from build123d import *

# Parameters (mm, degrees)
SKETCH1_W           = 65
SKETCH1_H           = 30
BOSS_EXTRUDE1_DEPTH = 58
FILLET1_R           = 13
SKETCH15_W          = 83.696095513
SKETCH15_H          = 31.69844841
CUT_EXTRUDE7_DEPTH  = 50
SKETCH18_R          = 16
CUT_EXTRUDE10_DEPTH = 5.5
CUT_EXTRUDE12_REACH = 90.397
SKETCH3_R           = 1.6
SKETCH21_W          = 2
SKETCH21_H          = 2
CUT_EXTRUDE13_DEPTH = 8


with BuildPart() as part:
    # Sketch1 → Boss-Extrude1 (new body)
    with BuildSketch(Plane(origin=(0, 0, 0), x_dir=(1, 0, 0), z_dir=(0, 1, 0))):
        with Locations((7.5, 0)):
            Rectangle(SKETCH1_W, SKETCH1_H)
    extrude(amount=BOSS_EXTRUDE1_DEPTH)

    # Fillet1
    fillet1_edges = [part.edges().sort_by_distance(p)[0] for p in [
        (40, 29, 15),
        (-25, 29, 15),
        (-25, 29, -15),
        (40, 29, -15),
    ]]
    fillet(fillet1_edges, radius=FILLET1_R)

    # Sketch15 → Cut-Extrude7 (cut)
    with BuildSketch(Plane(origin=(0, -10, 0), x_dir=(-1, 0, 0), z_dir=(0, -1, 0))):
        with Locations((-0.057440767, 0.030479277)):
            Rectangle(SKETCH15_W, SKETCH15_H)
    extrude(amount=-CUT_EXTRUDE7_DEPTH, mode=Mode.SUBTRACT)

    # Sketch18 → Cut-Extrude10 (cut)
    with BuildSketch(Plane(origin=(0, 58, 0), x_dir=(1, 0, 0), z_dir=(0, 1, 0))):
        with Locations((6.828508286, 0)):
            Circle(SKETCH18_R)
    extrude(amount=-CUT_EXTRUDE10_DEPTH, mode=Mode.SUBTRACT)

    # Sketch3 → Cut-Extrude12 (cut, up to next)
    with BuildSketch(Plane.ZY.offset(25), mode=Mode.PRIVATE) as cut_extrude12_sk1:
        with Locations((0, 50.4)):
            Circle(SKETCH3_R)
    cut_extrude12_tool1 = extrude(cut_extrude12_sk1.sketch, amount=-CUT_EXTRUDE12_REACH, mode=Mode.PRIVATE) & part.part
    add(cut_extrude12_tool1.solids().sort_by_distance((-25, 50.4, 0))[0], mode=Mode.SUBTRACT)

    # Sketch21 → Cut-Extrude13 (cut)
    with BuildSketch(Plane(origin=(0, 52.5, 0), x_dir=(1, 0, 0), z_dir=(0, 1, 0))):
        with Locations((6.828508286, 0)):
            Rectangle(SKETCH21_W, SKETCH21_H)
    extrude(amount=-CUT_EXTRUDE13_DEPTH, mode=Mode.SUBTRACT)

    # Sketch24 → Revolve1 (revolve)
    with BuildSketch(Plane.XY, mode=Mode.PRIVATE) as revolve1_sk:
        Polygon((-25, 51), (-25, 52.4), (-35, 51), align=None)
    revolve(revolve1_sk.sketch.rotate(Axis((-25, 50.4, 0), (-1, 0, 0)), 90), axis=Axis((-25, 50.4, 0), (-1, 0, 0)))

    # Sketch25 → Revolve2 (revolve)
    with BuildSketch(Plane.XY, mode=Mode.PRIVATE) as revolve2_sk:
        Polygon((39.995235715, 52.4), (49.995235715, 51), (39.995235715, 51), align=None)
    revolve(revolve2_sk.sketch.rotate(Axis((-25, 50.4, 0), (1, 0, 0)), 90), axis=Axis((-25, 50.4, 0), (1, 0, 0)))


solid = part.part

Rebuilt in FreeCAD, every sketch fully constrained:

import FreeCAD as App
import Part
import Sketcher


def edges_at(feature, points):
    """Names of the edges that pass closest to the given points."""
    edges = feature.Shape.Edges
    near = lambda p: min(range(len(edges)), key=lambda i: edges[i].distToShape(Part.Vertex(*p))[0])
    return sorted({f"Edge{near(p) + 1}" for p in points})


def add_polygon(sketch, points):
    """Adds a closed chain of lines whose ends are joined by coincident constraints."""
    first, n = sketch.GeometryCount, len(points)
    for a, b in zip(points, points[1:] + points[:1]):
        sketch.addGeometry(Part.LineSegment(App.Vector(*a, 0), App.Vector(*b, 0)), False)
    for i in range(n):
        sketch.addConstraint(Sketcher.Constraint("Coincident", first + i, 2, first + (i + 1) % n, 1))

doc = App.newDocument("Part")
params = doc.addObject("Spreadsheet::Sheet", "Params")
for row, (alias, value) in enumerate([
    ("sketch1_width", "65 mm"),
    ("sketch1_height", "30 mm"),
    ("pad1_length", "58 mm"),
    ("fillet_radius", "13 mm"),
    ("pocket1_length", "50 mm"),
    ("sketch3_diameter", "32 mm"),
    ("pocket2_length", "5.5 mm"),
    ("sketch4_diameter", "3.2 mm"),
    ("sketch5_width", "2 mm"),
    ("pocket4_length", "8 mm"),
    ("sketch6_width", "10 mm"),
    ("sketch6_height", "1.4 mm"),
    ("revolution_angle", "360 deg"),
    ("sketch7_width", "10 mm"),
    ("sketch7_height", "1.4 mm"),
    ("revolution2_angle", "360 deg"),
], start=1):
    params.set(f"A{row}", alias)
    params.set(f"B{row}", "=" + value)
    params.setAlias(f"B{row}", alias)

body = doc.addObject("PartDesign::Body", "Body")

# Sketch on XZ plane
sketch1 = doc.addObject("Sketcher::SketchObject", "Sketch")
body.addObject(sketch1)
sketch1.AttachmentSupport = (doc.XZ_Plane, [""])
sketch1.MapMode = "FlatFace"
add_polygon(sketch1, [(-25, -15), (-25, 15), (40, 15), (40, -15)])  # lines 0-3
sketch1.addConstraint([
    Sketcher.Constraint("Vertical", 0),
    Sketcher.Constraint("Horizontal", 1),
    Sketcher.Constraint("Vertical", 2),
    Sketcher.Constraint("Horizontal", 3),
    Sketcher.Constraint("DistanceX", 1, 1, 1, 2, 65.0),
    Sketcher.Constraint("DistanceY", 0, 1, 0, 2, 30.0),
    Sketcher.Constraint("DistanceX", 0, 2, -1, 1, 25.0),
    Sketcher.Constraint("DistanceY", -1, 1, 0, 2, 15.0),
])
sketch1.setExpression("Constraints[8]", "Params.sketch1_width")
sketch1.setExpression("Constraints[9]", "Params.sketch1_height")
pad1 = doc.addObject("PartDesign::Pad", "Pad")
body.addObject(pad1)
pad1.Profile = sketch1
pad1.setExpression("Length", "Params.pad1_length")
pad1.Reversed = True
doc.recompute()

fillet = doc.addObject("PartDesign::Fillet", "Fillet")
body.addObject(fillet)
fillet.Base = (pad1, edges_at(pad1, [
    (40, 29, 15),
    (-25, 29, 15),
    (-25, 29, -15),
    (40, 29, -15),
]))
fillet.setExpression("Radius", "Params.fillet_radius")

# Sketch on XZ plane
sketch2 = doc.addObject("Sketcher::SketchObject", "Sketch001")
body.addObject(sketch2)
sketch2.AttachmentSupport = (doc.XZ_Plane, [""])
sketch2.MapMode = "FlatFace"
sketch2.AttachmentOffset = App.Placement(App.Vector(0, 0, 10), App.Rotation())
add_polygon(sketch2, [(41.905489, -15.879703), (41.905489, 15.818745), (-41.790607, 15.818745), (-41.790607, -15.879703)])  # lines 0-3
sketch2.addConstraint([
    Sketcher.Constraint("Vertical", 0),
    Sketcher.Constraint("Horizontal", 1),
    Sketcher.Constraint("Vertical", 2),
    Sketcher.Constraint("Horizontal", 3),
    Sketcher.Constraint("DistanceY", 0, 1, 0, 2, 31.698448),
    Sketcher.Constraint("DistanceX", 1, 2, 1, 1, 83.696096),
    Sketcher.Constraint("DistanceX", -1, 1, 0, 2, 41.905489),
    Sketcher.Constraint("DistanceY", -1, 1, 0, 2, 15.818745),
])
pocket1 = doc.addObject("PartDesign::Pocket", "Pocket")
body.addObject(pocket1)
pocket1.Profile = sketch2
pocket1.setExpression("Length", "Params.pocket1_length")

# Sketch on XZ plane
sketch3 = doc.addObject("Sketcher::SketchObject", "Sketch002")
body.addObject(sketch3)
sketch3.AttachmentSupport = (doc.XZ_Plane, [""])
sketch3.MapMode = "FlatFace"
sketch3.AttachmentOffset = App.Placement(App.Vector(0, 0, -58), App.Rotation())
sketch3.addGeometry(Part.Circle(App.Vector(6.828508, 0, 0), App.Vector(0, 0, 1), 16), False)
sketch3.addConstraint([
    Sketcher.Constraint("PointOnObject", 0, 3, -1),
    Sketcher.Constraint("Diameter", 0, 32.0),
    Sketcher.Constraint("DistanceX", -1, 1, 0, 3, 6.828508),
])
sketch3.setExpression("Constraints[1]", "Params.sketch3_diameter")
pocket2 = doc.addObject("PartDesign::Pocket", "Pocket001")
body.addObject(pocket2)
pocket2.Profile = sketch3
pocket2.setExpression("Length", "Params.pocket2_length")
pocket2.Reversed = True

# Sketch on YZ plane
sketch4 = doc.addObject("Sketcher::SketchObject", "Sketch003")
body.addObject(sketch4)
sketch4.AttachmentSupport = (doc.YZ_Plane, [""])
sketch4.MapMode = "FlatFace"
sketch4.AttachmentOffset = App.Placement(App.Vector(0, 0, -25), App.Rotation())
sketch4.addGeometry(Part.Circle(App.Vector(50.4, 0, 0), App.Vector(0, 0, 1), 1.6), False)
sketch4.addConstraint([
    Sketcher.Constraint("PointOnObject", 0, 3, -1),
    Sketcher.Constraint("Diameter", 0, 3.2),
    Sketcher.Constraint("DistanceX", -1, 1, 0, 3, 50.4),
])
sketch4.setExpression("Constraints[1]", "Params.sketch4_diameter")
pocket3 = doc.addObject("PartDesign::Pocket", "Pocket002")
body.addObject(pocket3)
pocket3.Profile = sketch4
pocket3.Type = "UpToFirst"
pocket3.Reversed = True

# Sketch on XZ plane
sketch5 = doc.addObject("Sketcher::SketchObject", "Sketch004")
body.addObject(sketch5)
sketch5.AttachmentSupport = (doc.XZ_Plane, [""])
sketch5.MapMode = "FlatFace"
sketch5.AttachmentOffset = App.Placement(App.Vector(0, 0, -52.5), App.Rotation())
add_polygon(sketch5, [(5.828508, -1), (5.828508, 1), (7.828508, 1), (7.828508, -1)])  # lines 0-3
sketch5.addConstraint([
    Sketcher.Constraint("Vertical", 0),
    Sketcher.Constraint("Horizontal", 1),
    Sketcher.Constraint("Vertical", 2),
    Sketcher.Constraint("Horizontal", 3),
    Sketcher.Constraint("Equal", 3, 0),
    Sketcher.Constraint("DistanceX", 1, 1, 1, 2, 2.0),
    Sketcher.Constraint("DistanceY", -1, 1, 0, 2, 1.0),
    Sketcher.Constraint("DistanceX", -1, 1, 0, 2, 5.828508),
])
sketch5.setExpression("Constraints[9]", "Params.sketch5_width")
pocket4 = doc.addObject("PartDesign::Pocket", "Pocket003")
body.addObject(pocket4)
pocket4.Profile = sketch5
pocket4.setExpression("Length", "Params.pocket4_length")
pocket4.Reversed = True

# Sketch on XY plane
sketch6 = doc.addObject("Sketcher::SketchObject", "Sketch005")
body.addObject(sketch6)
sketch6.AttachmentSupport = (doc.XY_Plane, [""])
sketch6.MapMode = "FlatFace"
add_polygon(sketch6, [(-25, 51), (-25, 52.4), (-35, 51)])  # lines 0-2
sketch6.addGeometry(Part.LineSegment(App.Vector(-25, 50.4, 0), App.Vector(-35, 50.4, 0)), True)  # axis
sketch6.addConstraint([
    Sketcher.Constraint("Vertical", 0),
    Sketcher.Constraint("Horizontal", 2),
    Sketcher.Constraint("Horizontal", 3),
    Sketcher.Constraint("Vertical", 2, 2, 3, 1),
    Sketcher.Constraint("Vertical", 1, 2, 3, 2),
    Sketcher.Constraint("DistanceX", 2, 1, 2, 2, 10.0),
    Sketcher.Constraint("DistanceY", 0, 1, 0, 2, 1.4),
    Sketcher.Constraint("DistanceX", 0, 2, -1, 1, 25.0),
    Sketcher.Constraint("DistanceY", -1, 1, 1, 2, 51.0),
    Sketcher.Constraint("DistanceY", 3, 1, 0, 2, 2.0),
])
sketch6.setExpression("Constraints[8]", "Params.sketch6_width")
sketch6.setExpression("Constraints[9]", "Params.sketch6_height")
revolution = doc.addObject("PartDesign::Revolution", "Revolution")
body.addObject(revolution)
revolution.Profile = sketch6
revolution.ReferenceAxis = (sketch6, ["Axis0"])
revolution.setExpression("Angle", "Params.revolution_angle")

# Sketch on XY plane
sketch7 = doc.addObject("Sketcher::SketchObject", "Sketch006")
body.addObject(sketch7)
sketch7.AttachmentSupport = (doc.XY_Plane, [""])
sketch7.MapMode = "FlatFace"
add_polygon(sketch7, [(49.995236, 51), (39.995236, 52.4), (39.995236, 51)])  # lines 0-2
sketch7.addGeometry(Part.LineSegment(App.Vector(39.995236, 50.4, 0), App.Vector(49.995236, 50.4, 0)), True)  # axis
sketch7.addConstraint([
    Sketcher.Constraint("Vertical", 1),
    Sketcher.Constraint("Horizontal", 2),
    Sketcher.Constraint("Horizontal", 3),
    Sketcher.Constraint("Vertical", 1, 2, 3, 1),
    Sketcher.Constraint("Vertical", 2, 2, 3, 2),
    Sketcher.Constraint("DistanceX", 2, 1, 2, 2, 10.0),
    Sketcher.Constraint("DistanceY", 1, 2, 1, 1, 1.4),
    Sketcher.Constraint("DistanceY", -1, 1, 1, 2, 51.0),
    Sketcher.Constraint("DistanceY", 3, 1, 0, 2, 2.0),
    Sketcher.Constraint("DistanceX", -1, 1, 0, 2, 39.995236),
])
sketch7.setExpression("Constraints[8]", "Params.sketch7_width")
sketch7.setExpression("Constraints[9]", "Params.sketch7_height")
revolution2 = doc.addObject("PartDesign::Revolution", "Revolution001")
body.addObject(revolution2)
revolution2.Profile = sketch7
revolution2.ReferenceAxis = (sketch7, ["Axis0"])
revolution2.setExpression("Angle", "Params.revolution2_angle")

doc.recompute()
